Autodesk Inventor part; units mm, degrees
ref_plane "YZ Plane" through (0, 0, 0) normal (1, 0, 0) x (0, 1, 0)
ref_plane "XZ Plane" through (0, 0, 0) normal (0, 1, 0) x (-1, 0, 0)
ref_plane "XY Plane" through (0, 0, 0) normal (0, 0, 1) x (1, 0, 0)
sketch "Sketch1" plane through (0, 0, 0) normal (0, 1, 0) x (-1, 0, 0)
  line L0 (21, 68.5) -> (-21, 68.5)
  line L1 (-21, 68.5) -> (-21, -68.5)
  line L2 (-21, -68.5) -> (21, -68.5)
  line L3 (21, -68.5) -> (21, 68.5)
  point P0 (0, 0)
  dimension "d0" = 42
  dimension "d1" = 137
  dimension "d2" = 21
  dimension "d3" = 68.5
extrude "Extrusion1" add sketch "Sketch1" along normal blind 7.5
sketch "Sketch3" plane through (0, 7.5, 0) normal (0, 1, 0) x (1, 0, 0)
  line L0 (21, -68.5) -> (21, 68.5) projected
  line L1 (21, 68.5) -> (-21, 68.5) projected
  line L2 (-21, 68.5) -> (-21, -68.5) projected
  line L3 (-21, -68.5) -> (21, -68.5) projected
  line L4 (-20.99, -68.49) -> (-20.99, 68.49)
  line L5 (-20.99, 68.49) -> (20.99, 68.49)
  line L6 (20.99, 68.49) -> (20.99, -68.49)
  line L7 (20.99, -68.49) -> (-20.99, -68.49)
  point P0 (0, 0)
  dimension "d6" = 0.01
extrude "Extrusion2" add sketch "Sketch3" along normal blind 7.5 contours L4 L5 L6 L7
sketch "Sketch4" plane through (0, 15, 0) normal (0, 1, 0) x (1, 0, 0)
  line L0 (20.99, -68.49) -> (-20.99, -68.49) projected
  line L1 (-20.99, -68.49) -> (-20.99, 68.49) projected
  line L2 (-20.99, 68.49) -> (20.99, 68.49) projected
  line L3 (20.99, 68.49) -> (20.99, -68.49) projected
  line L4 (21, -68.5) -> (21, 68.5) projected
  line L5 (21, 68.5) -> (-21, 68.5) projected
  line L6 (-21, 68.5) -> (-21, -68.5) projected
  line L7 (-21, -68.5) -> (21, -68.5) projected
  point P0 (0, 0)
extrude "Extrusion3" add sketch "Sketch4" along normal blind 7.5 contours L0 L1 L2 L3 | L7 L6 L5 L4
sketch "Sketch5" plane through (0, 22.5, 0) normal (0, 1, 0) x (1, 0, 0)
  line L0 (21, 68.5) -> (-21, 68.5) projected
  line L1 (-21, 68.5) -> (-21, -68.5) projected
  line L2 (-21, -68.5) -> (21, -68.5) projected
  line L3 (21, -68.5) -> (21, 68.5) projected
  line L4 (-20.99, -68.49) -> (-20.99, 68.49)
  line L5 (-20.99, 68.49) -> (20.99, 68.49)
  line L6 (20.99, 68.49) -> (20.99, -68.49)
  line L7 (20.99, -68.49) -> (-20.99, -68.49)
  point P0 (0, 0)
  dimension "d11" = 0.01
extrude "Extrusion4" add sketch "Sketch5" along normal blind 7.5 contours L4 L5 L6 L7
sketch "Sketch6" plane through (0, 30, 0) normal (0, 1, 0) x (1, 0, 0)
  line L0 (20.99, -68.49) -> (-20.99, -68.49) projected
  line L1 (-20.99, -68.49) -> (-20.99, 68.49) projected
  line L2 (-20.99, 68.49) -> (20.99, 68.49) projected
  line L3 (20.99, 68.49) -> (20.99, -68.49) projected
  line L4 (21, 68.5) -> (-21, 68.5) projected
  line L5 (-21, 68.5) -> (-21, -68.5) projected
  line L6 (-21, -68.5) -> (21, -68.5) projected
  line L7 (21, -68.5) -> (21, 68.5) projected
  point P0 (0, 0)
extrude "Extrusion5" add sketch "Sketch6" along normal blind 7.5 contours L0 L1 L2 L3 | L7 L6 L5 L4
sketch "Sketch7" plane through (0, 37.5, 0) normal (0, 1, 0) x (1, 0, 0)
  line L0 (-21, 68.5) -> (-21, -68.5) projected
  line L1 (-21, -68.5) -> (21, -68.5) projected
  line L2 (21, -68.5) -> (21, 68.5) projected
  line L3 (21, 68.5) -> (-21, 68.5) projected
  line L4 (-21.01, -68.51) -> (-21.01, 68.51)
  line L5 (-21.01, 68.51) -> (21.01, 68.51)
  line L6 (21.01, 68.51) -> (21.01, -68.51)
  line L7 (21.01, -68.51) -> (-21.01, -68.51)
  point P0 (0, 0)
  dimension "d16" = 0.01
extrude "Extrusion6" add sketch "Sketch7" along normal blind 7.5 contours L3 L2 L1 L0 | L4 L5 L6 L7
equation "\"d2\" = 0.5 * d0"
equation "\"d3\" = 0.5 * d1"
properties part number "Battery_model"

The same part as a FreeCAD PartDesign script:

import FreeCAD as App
import Part
import Sketcher
Q = App.Units.Quantity


def add_polygon(sketch, points):
    """Adds a closed chain of lines whose ends are joined by coincident constraints."""
    first, n = sketch.GeometryCount, len(points)
    for a, b in zip(points, points[1:] + points[:1]):
        sketch.addGeometry(Part.LineSegment(App.Vector(*a, 0), App.Vector(*b, 0)), False)
    for i in range(n):
        sketch.addConstraint(Sketcher.Constraint("Coincident", first + i, 2, first + (i + 1) % n, 1))

doc = App.newDocument("Part")
body = doc.addObject("PartDesign::Body", "Body")

sketch1 = body.newObject("Sketcher::SketchObject", "Sketch")
sketch1.AttachmentSupport = (doc.getObject("XZ_Plane"), [""])
sketch1.MapMode = "FlatFace"
add_polygon(sketch1, [(-21, -68), (-21, 68), (21, 68), (21, -68)])
sketch1.addConstraint(Sketcher.Constraint("Vertical", 0))
sketch1.addConstraint(Sketcher.Constraint("Horizontal", 1))
sketch1.addConstraint(Sketcher.Constraint("Vertical", 2))
sketch1.addConstraint(Sketcher.Constraint("Horizontal", 3))
sketch1.addConstraint(Sketcher.Constraint("Symmetric", 0, 2, 2, 2, -1, 1))
sketch1.addConstraint(Sketcher.Constraint("DistanceX", 1, 1, 1, 2, Q("42 mm")))
sketch1.addConstraint(Sketcher.Constraint("DistanceY", 0, 1, 0, 2, Q("137 mm")))
pad1 = body.newObject("PartDesign::Pad", "Pad")
pad1.Profile = sketch1
pad1.Length = 7.5
pad1.Reversed = True

sketch2 = body.newObject("Sketcher::SketchObject", "Sketch001")
sketch2.AttachmentSupport = (doc.getObject("XZ_Plane"), [""])
sketch2.MapMode = "FlatFace"
sketch2.AttachmentOffset = App.Placement(App.Vector(0, 0, -7.5), App.Rotation())
add_polygon(sketch2, [(-21, -68), (-21, 68), (21, 68), (21, -68)])
sketch2.addConstraint(Sketcher.Constraint("Vertical", 0))
sketch2.addConstraint(Sketcher.Constraint("Horizontal", 1))
sketch2.addConstraint(Sketcher.Constraint("Vertical", 2))
sketch2.addConstraint(Sketcher.Constraint("Horizontal", 3))
sketch2.addConstraint(Sketcher.Constraint("Symmetric", 0, 2, 2, 2, -1, 1))
sketch2.addConstraint(Sketcher.Constraint("DistanceX", 1, 1, 1, 2, Q("41.98 mm")))
sketch2.addConstraint(Sketcher.Constraint("DistanceY", 0, 1, 0, 2, Q("136.98 mm")))
pad2 = body.newObject("PartDesign::Pad", "Pad001")
pad2.Profile = sketch2
pad2.Length = 7.5
pad2.Reversed = True

sketch3 = body.newObject("Sketcher::SketchObject", "Sketch002")
sketch3.AttachmentSupport = (doc.getObject("XZ_Plane"), [""])
sketch3.MapMode = "FlatFace"
sketch3.AttachmentOffset = App.Placement(App.Vector(0, 0, -15), App.Rotation())
add_polygon(sketch3, [(-21, 68), (21, 68), (21, -68), (-21, -68)])
sketch3.addConstraint(Sketcher.Constraint("Horizontal", 0))
sketch3.addConstraint(Sketcher.Constraint("Vertical", 1))
sketch3.addConstraint(Sketcher.Constraint("Horizontal", 2))
sketch3.addConstraint(Sketcher.Constraint("Vertical", 3))
sketch3.addConstraint(Sketcher.Constraint("Symmetric", 0, 2, 2, 2, -1, 1))
sketch3.addConstraint(Sketcher.Constraint("DistanceX", 0, 1, 0, 2, Q("42 mm")))
sketch3.addConstraint(Sketcher.Constraint("DistanceY", 1, 2, 1, 1, Q("137 mm")))
pad3 = body.newObject("PartDesign::Pad", "Pad002")
pad3.Profile = sketch3
pad3.Length = 7.5
pad3.Reversed = True

sketch4 = body.newObject("Sketcher::SketchObject", "Sketch003")
sketch4.AttachmentSupport = (doc.getObject("XZ_Plane"), [""])
sketch4.MapMode = "FlatFace"
sketch4.AttachmentOffset = App.Placement(App.Vector(0, 0, -22.5), App.Rotation())
add_polygon(sketch4, [(-21, -68), (-21, 68), (21, 68), (21, -68)])
sketch4.addConstraint(Sketcher.Constraint("Vertical", 0))
sketch4.addConstraint(Sketcher.Constraint("Horizontal", 1))
sketch4.addConstraint(Sketcher.Constraint("Vertical", 2))
sketch4.addConstraint(Sketcher.Constraint("Horizontal", 3))
sketch4.addConstraint(Sketcher.Constraint("Symmetric", 0, 2, 2, 2, -1, 1))
sketch4.addConstraint(Sketcher.Constraint("DistanceX", 1, 1, 1, 2, Q("41.98 mm")))
sketch4.addConstraint(Sketcher.Constraint("DistanceY", 0, 1, 0, 2, Q("136.98 mm")))
pad4 = body.newObject("PartDesign::Pad", "Pad003")
pad4.Profile = sketch4
pad4.Length = 7.5
pad4.Reversed = True

sketch5 = body.newObject("Sketcher::SketchObject", "Sketch004")
sketch5.AttachmentSupport = (doc.getObject("XZ_Plane"), [""])
sketch5.MapMode = "FlatFace"
sketch5.AttachmentOffset = App.Placement(App.Vector(0, 0, -30), App.Rotation())
add_polygon(sketch5, [(21, 68), (21, -68), (-21, -68), (-21, 68)])
sketch5.addConstraint(Sketcher.Constraint("Vertical", 0))
sketch5.addConstraint(Sketcher.Constraint("Horizontal", 1))
sketch5.addConstraint(Sketcher.Constraint("Vertical", 2))
sketch5.addConstraint(Sketcher.Constraint("Horizontal", 3))
sketch5.addConstraint(Sketcher.Constraint("Symmetric", 0, 2, 2, 2, -1, 1))
sketch5.addConstraint(Sketcher.Constraint("DistanceX", 1, 2, 1, 1, Q("42 mm")))
sketch5.addConstraint(Sketcher.Constraint("DistanceY", 0, 2, 0, 1, Q("137 mm")))
pad5 = body.newObject("PartDesign::Pad", "Pad004")
pad5.Profile = sketch5
pad5.Length = 7.5
pad5.Reversed = True

sketch6 = body.newObject("Sketcher::SketchObject", "Sketch005")
sketch6.AttachmentSupport = (doc.getObject("XZ_Plane"), [""])
sketch6.MapMode = "FlatFace"
sketch6.AttachmentOffset = App.Placement(App.Vector(0, 0, -37.5), App.Rotation())
add_polygon(sketch6, [(-21, -69), (-21, 69), (21, 69), (21, -69)])
sketch6.addConstraint(Sketcher.Constraint("Vertical", 0))
sketch6.addConstraint(Sketcher.Constraint("Horizontal", 1))
sketch6.addConstraint(Sketcher.Constraint("Vertical", 2))
sketch6.addConstraint(Sketcher.Constraint("Horizontal", 3))
sketch6.addConstraint(Sketcher.Constraint("Symmetric", 0, 2, 2, 2, -1, 1))
sketch6.addConstraint(Sketcher.Constraint("DistanceX", 1, 1, 1, 2, Q("42.02 mm")))
sketch6.addConstraint(Sketcher.Constraint("DistanceY", 0, 1, 0, 2, Q("137.02 mm")))
pad6 = body.newObject("PartDesign::Pad", "Pad005")
pad6.Profile = sketch6
pad6.Length = 7.5
pad6.Reversed = True

doc.recompute()
